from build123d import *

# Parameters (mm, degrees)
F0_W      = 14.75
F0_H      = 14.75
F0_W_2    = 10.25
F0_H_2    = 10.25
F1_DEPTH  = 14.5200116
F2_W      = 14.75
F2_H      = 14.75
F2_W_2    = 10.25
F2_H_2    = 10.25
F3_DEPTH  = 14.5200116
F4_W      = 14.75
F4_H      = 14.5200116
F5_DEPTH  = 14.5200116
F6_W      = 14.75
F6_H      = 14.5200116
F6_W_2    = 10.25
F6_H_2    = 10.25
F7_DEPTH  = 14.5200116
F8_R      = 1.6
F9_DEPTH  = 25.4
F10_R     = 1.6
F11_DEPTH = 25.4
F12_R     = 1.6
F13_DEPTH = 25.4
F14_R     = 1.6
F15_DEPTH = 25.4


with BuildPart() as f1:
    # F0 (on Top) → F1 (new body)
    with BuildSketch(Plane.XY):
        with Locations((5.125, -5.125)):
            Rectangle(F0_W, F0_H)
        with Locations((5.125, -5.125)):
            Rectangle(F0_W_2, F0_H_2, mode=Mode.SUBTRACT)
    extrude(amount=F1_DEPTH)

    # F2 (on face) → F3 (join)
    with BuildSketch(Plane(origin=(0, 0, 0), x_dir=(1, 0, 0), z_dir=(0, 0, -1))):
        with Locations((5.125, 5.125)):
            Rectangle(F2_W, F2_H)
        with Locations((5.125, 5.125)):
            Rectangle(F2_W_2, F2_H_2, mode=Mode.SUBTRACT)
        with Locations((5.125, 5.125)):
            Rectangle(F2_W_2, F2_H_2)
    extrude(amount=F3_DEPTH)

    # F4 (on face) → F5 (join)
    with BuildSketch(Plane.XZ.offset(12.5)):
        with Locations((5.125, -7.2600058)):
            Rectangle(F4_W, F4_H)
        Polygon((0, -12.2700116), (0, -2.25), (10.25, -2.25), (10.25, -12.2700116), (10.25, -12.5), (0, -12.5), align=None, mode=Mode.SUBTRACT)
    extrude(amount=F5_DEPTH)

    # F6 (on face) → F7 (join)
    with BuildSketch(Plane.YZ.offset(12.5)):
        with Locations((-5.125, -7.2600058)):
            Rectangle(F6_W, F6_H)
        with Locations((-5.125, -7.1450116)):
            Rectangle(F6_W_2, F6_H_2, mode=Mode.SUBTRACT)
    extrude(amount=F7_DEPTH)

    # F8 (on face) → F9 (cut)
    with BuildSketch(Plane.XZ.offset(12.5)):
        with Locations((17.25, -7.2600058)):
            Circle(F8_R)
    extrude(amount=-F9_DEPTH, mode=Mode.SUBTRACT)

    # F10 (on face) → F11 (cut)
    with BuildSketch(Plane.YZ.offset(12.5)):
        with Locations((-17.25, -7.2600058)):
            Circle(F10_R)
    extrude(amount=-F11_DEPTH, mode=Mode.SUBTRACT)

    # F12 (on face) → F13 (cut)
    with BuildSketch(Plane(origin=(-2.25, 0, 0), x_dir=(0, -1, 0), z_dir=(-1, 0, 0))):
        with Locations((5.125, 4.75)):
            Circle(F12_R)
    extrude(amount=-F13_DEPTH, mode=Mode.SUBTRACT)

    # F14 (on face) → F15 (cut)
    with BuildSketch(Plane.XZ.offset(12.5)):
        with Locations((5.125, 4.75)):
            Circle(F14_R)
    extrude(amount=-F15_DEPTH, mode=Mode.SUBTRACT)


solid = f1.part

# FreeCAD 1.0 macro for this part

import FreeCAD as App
import Part
import Sketcher
from FreeCAD import Vector
Q = App.Units.Quantity

doc = App.newDocument("Part")
body = doc.addObject("PartDesign::Body", "Body")

sketch1 = doc.addObject("Sketcher::SketchObject", "Sketch")
body.addObject(sketch1)
sketch1.AttachmentSupport = (doc.XY_Plane, [""])
sketch1.MapMode = "FlatFace"
sketch1.addGeometry([
    Part.LineSegment(Vector(-2.25, 2.25, 0), Vector(-2.25, -12.5, 0)),
    Part.LineSegment(Vector(-2.25, -12.5, 0), Vector(12.5, -12.5, 0)),
    Part.LineSegment(Vector(12.5, -12.5, 0), Vector(12.5, 2.25, 0)),
    Part.LineSegment(Vector(12.5, 2.25, 0), Vector(-2.25, 2.25, 0)),
    Part.LineSegment(Vector(10.25, -10.25, 0), Vector(0, -10.25, 0)),
    Part.LineSegment(Vector(0, -10.25, 0), Vector(0, 0, 0)),
    Part.LineSegment(Vector(0, 0, 0), Vector(10.25, 0, 0)),
    Part.LineSegment(Vector(10.25, 0, 0), Vector(10.25, -10.25, 0)),
], False)
sketch1.addConstraint([
    Sketcher.Constraint("Coincident", 0, 2, 1, 1),
    Sketcher.Constraint("Coincident", 1, 2, 2, 1),
    Sketcher.Constraint("Coincident", 2, 2, 3, 1),
    Sketcher.Constraint("Coincident", 3, 2, 0, 1),
    Sketcher.Constraint("Coincident", 4, 2, 5, 1),
    Sketcher.Constraint("Coincident", 5, 2, 6, 1),
    Sketcher.Constraint("Coincident", 6, 2, 7, 1),
    Sketcher.Constraint("Coincident", 7, 2, 4, 1),
    Sketcher.Constraint("Vertical", 0),
    Sketcher.Constraint("Horizontal", 1),
    Sketcher.Constraint("Vertical", 2),
    Sketcher.Constraint("Horizontal", 3),
    Sketcher.Constraint("Horizontal", 4),
    Sketcher.Constraint("Vertical", 5),
    Sketcher.Constraint("Horizontal", 6),
    Sketcher.Constraint("Vertical", 7),
    Sketcher.Constraint("Coincident", 5, 2, -1, 1),
    Sketcher.Constraint("Equal", 3, 0),
    Sketcher.Constraint("Equal", 6, 5),
    Sketcher.Constraint("DistanceX", 1, 1, 1, 2, Q("14.75 mm")),
    Sketcher.Constraint("DistanceX", 4, 2, 4, 1, Q("10.25 mm")),
    Sketcher.Constraint("DistanceY", 0, 2, -1, 1, Q("12.5 mm")),
    Sketcher.Constraint("DistanceX", -1, 1, 1, 2, Q("12.5 mm")),
])
pad1 = doc.addObject("PartDesign::Pad", "Pad")
body.addObject(pad1)
pad1.Profile = sketch1
pad1.Length = 14.520012

sketch2 = doc.addObject("Sketcher::SketchObject", "Sketch001")
body.addObject(sketch2)
sketch2.AttachmentSupport = (doc.XY_Plane, [""])
sketch2.MapMode = "FlatFace"
sketch2.addGeometry([
    Part.LineSegment(Vector(-2.25, -12.5, 0), Vector(-2.25, 2.25, 0)),
    Part.LineSegment(Vector(-2.25, 2.25, 0), Vector(12.5, 2.25, 0)),
    Part.LineSegment(Vector(12.5, 2.25, 0), Vector(12.5, -12.5, 0)),
    Part.LineSegment(Vector(12.5, -12.5, 0), Vector(-2.25, -12.5, 0)),
], False)
sketch2.addConstraint([
    Sketcher.Constraint("Coincident", 0, 2, 1, 1),
    Sketcher.Constraint("Coincident", 1, 2, 2, 1),
    Sketcher.Constraint("Coincident", 2, 2, 3, 1),
    Sketcher.Constraint("Coincident", 3, 2, 0, 1),
    Sketcher.Constraint("Vertical", 0),
    Sketcher.Constraint("Horizontal", 1),
    Sketcher.Constraint("Vertical", 2),
    Sketcher.Constraint("Horizontal", 3),
    Sketcher.Constraint("Equal", 3, 0),
    Sketcher.Constraint("DistanceX", 1, 1, 1, 2, Q("14.75 mm")),
    Sketcher.Constraint("DistanceX", -1, 1, 1, 2, Q("12.5 mm")),
    Sketcher.Constraint("DistanceY", 2, 2, -1, 1, Q("12.5 mm")),
])
pad2 = doc.addObject("PartDesign::Pad", "Pad001")
body.addObject(pad2)
pad2.Profile = sketch2
pad2.Length = 14.520012
pad2.Reversed = True

sketch3 = doc.addObject("Sketcher::SketchObject", "Sketch002")
body.addObject(sketch3)
sketch3.AttachmentSupport = (doc.XZ_Plane, [""])
sketch3.MapMode = "FlatFace"
sketch3.AttachmentOffset = App.Placement(Vector(0, 0, 12.5), App.Rotation())
sketch3.addGeometry([
    Part.LineSegment(Vector(-2.25, 0, 0), Vector(-2.25, -14.520012, 0)),
    Part.LineSegment(Vector(-2.25, -14.520012, 0), Vector(12.5, -14.520012, 0)),
    Part.LineSegment(Vector(12.5, -14.520012, 0), Vector(12.5, 0, 0)),
    Part.LineSegment(Vector(12.5, 0, 0), Vector(-2.25, 0, 0)),
    Part.LineSegment(Vector(0, -12.5, 0), Vector(0, -2.25, 0)),
    Part.LineSegment(Vector(0, -2.25, 0), Vector(10.25, -2.25, 0)),
    Part.LineSegment(Vector(10.25, -2.25, 0), Vector(10.25, -12.5, 0)),
    Part.LineSegment(Vector(10.25, -12.5, 0), Vector(0, -12.5, 0)),
], False)
sketch3.addConstraint([
    Sketcher.Constraint("Coincident", 0, 2, 1, 1),
    Sketcher.Constraint("Coincident", 1, 2, 2, 1),
    Sketcher.Constraint("Coincident", 2, 2, 3, 1),
    Sketcher.Constraint("Coincident", 3, 2, 0, 1),
    Sketcher.Constraint("Coincident", 4, 2, 5, 1),
    Sketcher.Constraint("Coincident", 5, 2, 6, 1),
    Sketcher.Constraint("Coincident", 6, 2, 7, 1),
    Sketcher.Constraint("Coincident", 7, 2, 4, 1),
    Sketcher.Constraint("Vertical", 0),
    Sketcher.Constraint("Horizontal", 1),
    Sketcher.Constraint("Vertical", 2),
    Sketcher.Constraint("Horizontal", 3),
    Sketcher.Constraint("Vertical", 4),
    Sketcher.Constraint("Horizontal", 5),
    Sketcher.Constraint("Vertical", 6),
    Sketcher.Constraint("Horizontal", 7),
    Sketcher.Constraint("PointOnObject", 2, 2, -1),
    Sketcher.Constraint("PointOnObject", 4, 2, -2),
    Sketcher.Constraint("Equal", 7, 4),
    Sketcher.Constraint("DistanceX", 1, 1, 1, 2, Q("14.75 mm")),
    Sketcher.Constraint("DistanceX", 5, 1, 5, 2, Q("10.25 mm")),
    Sketcher.Constraint("DistanceX", -1, 1, 1, 2, Q("12.5 mm")),
    Sketcher.Constraint("DistanceY", 6, 2, -1, 1, Q("12.5 mm")),
    Sketcher.Constraint("DistanceY", 0, 2, 0, 1, Q("14.520012 mm")),
])
pad3 = doc.addObject("PartDesign::Pad", "Pad002")
body.addObject(pad3)
pad3.Profile = sketch3
pad3.Length = 14.520012

sketch4 = doc.addObject("Sketcher::SketchObject", "Sketch003")
body.addObject(sketch4)
sketch4.AttachmentSupport = (doc.YZ_Plane, [""])
sketch4.MapMode = "FlatFace"
sketch4.AttachmentOffset = App.Placement(Vector(0, 0, 12.5), App.Rotation())
sketch4.addGeometry([
    Part.LineSegment(Vector(-12.5, 0, 0), Vector(-12.5, -14.520012, 0)),
    Part.LineSegment(Vector(-12.5, -14.520012, 0), Vector(2.25, -14.520012, 0)),
    Part.LineSegment(Vector(2.25, -14.520012, 0), Vector(2.25, 0, 0)),
    Part.LineSegment(Vector(2.25, 0, 0), Vector(-12.5, 0, 0)),
    Part.LineSegment(Vector(0, -12.270012, 0), Vector(-10.25, -12.270012, 0)),
    Part.LineSegment(Vector(-10.25, -12.270012, 0), Vector(-10.25, -2.020012, 0)),
    Part.LineSegment(Vector(-10.25, -2.020012, 0), Vector(0, -2.020012, 0)),
    Part.LineSegment(Vector(0, -2.020012, 0), Vector(0, -12.270012, 0)),
], False)
sketch4.addConstraint([
    Sketcher.Constraint("Coincident", 0, 2, 1, 1),
    Sketcher.Constraint("Coincident", 1, 2, 2, 1),
    Sketcher.Constraint("Coincident", 2, 2, 3, 1),
    Sketcher.Constraint("Coincident", 3, 2, 0, 1),
    Sketcher.Constraint("Coincident", 4, 2, 5, 1),
    Sketcher.Constraint("Coincident", 5, 2, 6, 1),
    Sketcher.Constraint("Coincident", 6, 2, 7, 1),
    Sketcher.Constraint("Coincident", 7, 2, 4, 1),
    Sketcher.Constraint("Vertical", 0),
    Sketcher.Constraint("Horizontal", 1),
    Sketcher.Constraint("Vertical", 2),
    Sketcher.Constraint("Horizontal", 3),
    Sketcher.Constraint("Horizontal", 4),
    Sketcher.Constraint("Vertical", 5),
    Sketcher.Constraint("Horizontal", 6),
    Sketcher.Constraint("Vertical", 7),
    Sketcher.Constraint("PointOnObject", 2, 2, -1),
    Sketcher.Constraint("PointOnObject", 6, 2, -2),
    Sketcher.Constraint("Equal", 6, 5),
    Sketcher.Constraint("DistanceX", 1, 1, 1, 2, Q("14.75 mm")),
    Sketcher.Constraint("DistanceX", 4, 2, 4, 1, Q("10.25 mm")),
    Sketcher.Constraint("DistanceX", 0, 2, -1, 1, Q("12.5 mm")),
    Sketcher.Constraint("DistanceY", 0, 2, 5, 2, Q("12.5 mm")),
    Sketcher.Constraint("DistanceY", 0, 2, 0, 1, Q("14.520012 mm")),
])
pad4 = doc.addObject("PartDesign::Pad", "Pad003")
body.addObject(pad4)
pad4.Profile = sketch4
pad4.Length = 14.520012

sketch5 = doc.addObject("Sketcher::SketchObject", "Sketch004")
body.addObject(sketch5)
sketch5.AttachmentSupport = (doc.XZ_Plane, [""])
sketch5.MapMode = "FlatFace"
sketch5.AttachmentOffset = App.Placement(Vector(0, 0, 12.5), App.Rotation())
sketch5.addGeometry(Part.Circle(Vector(17.25, -7.260006, 0), Vector(0, 0, 1), 1.6), False)
sketch5.addConstraint([
    Sketcher.Constraint("Diameter", 0, Q("3.2 mm")),
    Sketcher.Constraint("DistanceX", -1, 1, 0, 3, Q("17.25 mm")),
    Sketcher.Constraint("DistanceY", 0, 3, -1, 1, Q("7.260006 mm")),
])
pocket1 = doc.addObject("PartDesign::Pocket", "Pocket")
body.addObject(pocket1)
pocket1.Profile = sketch5
pocket1.Length = 25.4

sketch6 = doc.addObject("Sketcher::SketchObject", "Sketch005")
body.addObject(sketch6)
sketch6.AttachmentSupport = (doc.YZ_Plane, [""])
sketch6.MapMode = "FlatFace"
sketch6.AttachmentOffset = App.Placement(Vector(0, 0, 12.5), App.Rotation())
sketch6.addGeometry(Part.Circle(Vector(-17.25, -7.260006, 0), Vector(0, 0, 1), 1.6), False)
sketch6.addConstraint([
    Sketcher.Constraint("Diameter", 0, Q("3.2 mm")),
    Sketcher.Constraint("DistanceX", 0, 3, -1, 1, Q("17.25 mm")),
    Sketcher.Constraint("DistanceY", 0, 3, -1, 1, Q("7.260006 mm")),
])
pocket2 = doc.addObject("PartDesign::Pocket", "Pocket001")
body.addObject(pocket2)
pocket2.Profile = sketch6
pocket2.Length = 25.4

sketch7 = doc.addObject("Sketcher::SketchObject", "Sketch006")
body.addObject(sketch7)
sketch7.AttachmentSupport = (doc.YZ_Plane, [""])
sketch7.MapMode = "FlatFace"
sketch7.AttachmentOffset = App.Placement(Vector(0, 0, -2.25), App.Rotation())
sketch7.addGeometry(Part.Circle(Vector(-5.125, 4.75, 0), Vector(0, 0, 1), 1.6), False)
sketch7.addConstraint([
    Sketcher.Constraint("Diameter", 0, Q("3.2 mm")),
    Sketcher.Constraint("DistanceY", -1, 1, 0, 3, Q("4.75 mm")),
    Sketcher.Constraint("DistanceX", 0, 3, -1, 1, Q("5.125 mm")),
])
pocket3 = doc.addObject("PartDesign::Pocket", "Pocket002")
body.addObject(pocket3)
pocket3.Profile = sketch7
pocket3.Length = 25.4
pocket3.Reversed = True

sketch8 = doc.addObject("Sketcher::SketchObject", "Sketch007")
body.addObject(sketch8)
sketch8.AttachmentSupport = (doc.XZ_Plane, [""])
sketch8.MapMode = "FlatFace"
sketch8.AttachmentOffset = App.Placement(Vector(0, 0, 12.5), App.Rotation())
sketch8.addGeometry(Part.Circle(Vector(5.125, 4.75, 0), Vector(0, 0, 1), 1.6), False)
sketch8.addConstraint([
    Sketcher.Constraint("Diameter", 0, Q("3.2 mm")),
    Sketcher.Constraint("DistanceY", -1, 1, 0, 3, Q("4.75 mm")),
    Sketcher.Constraint("DistanceX", -1, 1, 0, 3, Q("5.125 mm")),
])
pocket4 = doc.addObject("PartDesign::Pocket", "Pocket003")
body.addObject(pocket4)
pocket4.Profile = sketch8
pocket4.Length = 25.4

doc.recompute()
